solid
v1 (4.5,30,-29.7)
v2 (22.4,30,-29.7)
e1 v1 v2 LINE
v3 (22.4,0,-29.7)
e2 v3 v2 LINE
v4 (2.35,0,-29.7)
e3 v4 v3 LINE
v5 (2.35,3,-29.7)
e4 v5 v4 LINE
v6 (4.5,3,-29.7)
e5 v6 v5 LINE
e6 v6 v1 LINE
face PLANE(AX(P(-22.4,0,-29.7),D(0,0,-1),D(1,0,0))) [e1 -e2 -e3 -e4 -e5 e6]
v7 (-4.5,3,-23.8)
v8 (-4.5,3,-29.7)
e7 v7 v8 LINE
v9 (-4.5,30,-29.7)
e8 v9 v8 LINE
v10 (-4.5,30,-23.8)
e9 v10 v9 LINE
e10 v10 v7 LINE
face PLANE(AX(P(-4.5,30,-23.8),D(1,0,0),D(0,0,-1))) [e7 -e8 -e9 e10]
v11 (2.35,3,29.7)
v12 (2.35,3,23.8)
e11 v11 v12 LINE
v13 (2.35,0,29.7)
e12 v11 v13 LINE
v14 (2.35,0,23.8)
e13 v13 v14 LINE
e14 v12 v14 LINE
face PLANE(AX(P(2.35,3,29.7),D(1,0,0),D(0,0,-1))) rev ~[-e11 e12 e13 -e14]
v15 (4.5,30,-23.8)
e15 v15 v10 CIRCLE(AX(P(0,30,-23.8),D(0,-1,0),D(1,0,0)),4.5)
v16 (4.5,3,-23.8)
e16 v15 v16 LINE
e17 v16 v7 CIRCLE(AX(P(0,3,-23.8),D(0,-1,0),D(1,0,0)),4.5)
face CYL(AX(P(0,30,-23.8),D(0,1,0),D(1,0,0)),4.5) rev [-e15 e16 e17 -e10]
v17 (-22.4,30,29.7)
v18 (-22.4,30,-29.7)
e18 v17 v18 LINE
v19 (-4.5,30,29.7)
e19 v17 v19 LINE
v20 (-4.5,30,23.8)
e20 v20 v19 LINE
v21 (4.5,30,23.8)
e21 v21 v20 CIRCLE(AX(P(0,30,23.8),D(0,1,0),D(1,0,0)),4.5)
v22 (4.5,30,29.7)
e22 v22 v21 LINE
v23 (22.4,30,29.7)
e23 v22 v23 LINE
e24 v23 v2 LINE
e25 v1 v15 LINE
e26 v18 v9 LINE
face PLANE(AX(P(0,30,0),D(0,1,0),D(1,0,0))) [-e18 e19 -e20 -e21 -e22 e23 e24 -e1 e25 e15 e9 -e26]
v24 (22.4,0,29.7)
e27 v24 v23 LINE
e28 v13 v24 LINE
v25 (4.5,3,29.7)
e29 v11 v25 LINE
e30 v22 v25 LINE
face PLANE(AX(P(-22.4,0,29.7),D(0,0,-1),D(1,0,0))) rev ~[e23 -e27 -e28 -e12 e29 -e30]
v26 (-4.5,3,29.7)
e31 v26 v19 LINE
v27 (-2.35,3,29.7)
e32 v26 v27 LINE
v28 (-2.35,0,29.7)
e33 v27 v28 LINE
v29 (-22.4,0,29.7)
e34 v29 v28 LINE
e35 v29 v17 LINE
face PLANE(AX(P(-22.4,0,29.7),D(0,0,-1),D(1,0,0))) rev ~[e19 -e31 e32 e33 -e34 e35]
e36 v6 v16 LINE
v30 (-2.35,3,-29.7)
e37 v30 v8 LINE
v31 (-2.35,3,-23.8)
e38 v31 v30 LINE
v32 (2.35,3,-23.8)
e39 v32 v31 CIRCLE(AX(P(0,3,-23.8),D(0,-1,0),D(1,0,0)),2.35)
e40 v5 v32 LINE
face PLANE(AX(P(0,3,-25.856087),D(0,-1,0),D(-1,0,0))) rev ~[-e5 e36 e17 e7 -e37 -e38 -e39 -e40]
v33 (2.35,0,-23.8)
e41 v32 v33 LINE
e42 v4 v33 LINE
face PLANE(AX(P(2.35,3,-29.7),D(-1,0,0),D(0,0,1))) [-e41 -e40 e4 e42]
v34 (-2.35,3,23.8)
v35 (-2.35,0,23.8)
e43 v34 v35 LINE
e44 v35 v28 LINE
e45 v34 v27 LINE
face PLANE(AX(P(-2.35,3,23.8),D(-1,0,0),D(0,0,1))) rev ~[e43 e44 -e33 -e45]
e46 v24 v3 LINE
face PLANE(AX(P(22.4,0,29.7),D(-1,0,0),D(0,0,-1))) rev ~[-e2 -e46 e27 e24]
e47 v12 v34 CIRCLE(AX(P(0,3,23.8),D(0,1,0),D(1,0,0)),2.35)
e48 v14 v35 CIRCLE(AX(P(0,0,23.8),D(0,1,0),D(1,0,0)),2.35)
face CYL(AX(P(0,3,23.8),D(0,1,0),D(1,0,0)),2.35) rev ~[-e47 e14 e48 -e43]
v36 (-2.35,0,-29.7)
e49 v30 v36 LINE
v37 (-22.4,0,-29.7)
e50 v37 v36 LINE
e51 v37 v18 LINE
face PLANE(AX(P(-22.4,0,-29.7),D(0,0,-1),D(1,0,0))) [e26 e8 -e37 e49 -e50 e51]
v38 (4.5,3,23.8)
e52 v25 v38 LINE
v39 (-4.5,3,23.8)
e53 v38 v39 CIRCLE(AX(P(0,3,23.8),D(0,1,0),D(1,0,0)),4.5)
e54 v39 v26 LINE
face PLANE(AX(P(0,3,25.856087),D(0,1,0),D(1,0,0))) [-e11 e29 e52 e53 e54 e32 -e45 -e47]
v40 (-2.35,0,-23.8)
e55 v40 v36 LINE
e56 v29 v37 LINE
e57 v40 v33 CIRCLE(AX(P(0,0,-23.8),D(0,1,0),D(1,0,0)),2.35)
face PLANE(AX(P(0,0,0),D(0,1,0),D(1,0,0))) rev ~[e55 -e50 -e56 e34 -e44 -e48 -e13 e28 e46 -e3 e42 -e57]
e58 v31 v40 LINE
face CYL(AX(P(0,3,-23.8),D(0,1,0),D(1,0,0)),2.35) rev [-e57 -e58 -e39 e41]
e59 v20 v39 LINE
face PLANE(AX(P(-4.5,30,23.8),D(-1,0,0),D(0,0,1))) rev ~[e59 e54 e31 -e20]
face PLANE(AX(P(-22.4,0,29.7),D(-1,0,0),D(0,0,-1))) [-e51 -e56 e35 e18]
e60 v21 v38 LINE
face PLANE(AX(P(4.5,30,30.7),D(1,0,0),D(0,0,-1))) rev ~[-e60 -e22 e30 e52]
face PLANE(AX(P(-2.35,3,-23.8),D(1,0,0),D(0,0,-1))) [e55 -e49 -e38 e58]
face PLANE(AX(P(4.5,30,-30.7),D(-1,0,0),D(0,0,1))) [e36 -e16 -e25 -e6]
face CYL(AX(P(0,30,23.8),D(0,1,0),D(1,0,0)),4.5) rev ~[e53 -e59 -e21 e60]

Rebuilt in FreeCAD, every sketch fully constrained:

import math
import FreeCAD as App
import Part
import Sketcher
Q = App.Units.Quantity


def add_polygon(sketch, points):
    """Adds a closed chain of lines whose ends are joined by coincident constraints."""
    first, n = sketch.GeometryCount, len(points)
    for a, b in zip(points, points[1:] + points[:1]):
        sketch.addGeometry(Part.LineSegment(App.Vector(*a, 0), App.Vector(*b, 0)), False)
    for i in range(n):
        sketch.addConstraint(Sketcher.Constraint("Coincident", first + i, 2, first + (i + 1) % n, 1))

doc = App.newDocument("Part")
params = doc.addObject("Spreadsheet::Sheet", "Params")
for row, (alias, value) in enumerate([
    ("sketch1_width", "44.8 mm"),
    ("sketch1_height", "59.4 mm"),
    ("pad1_length", "30 mm"),
    ("sketch2_radius", "4.5 mm"),
    ("sketch2_height", "6.9 mm"),
    ("pocket1_length", "27 mm"),
    ("sketch3_radius", "2.35 mm"),
    ("sketch3_height", "5.9 mm"),
], start=1):
    params.set(f"A{row}", alias)
    params.set(f"B{row}", "=" + value)
    params.setAlias(f"B{row}", alias)

body = doc.addObject("PartDesign::Body", "Body")

# Sketch on XZ plane
sketch1 = body.newObject("Sketcher::SketchObject", "Sketch")
sketch1.AttachmentSupport = (doc.getObject("XZ_Plane"), [""])
sketch1.MapMode = "FlatFace"
add_polygon(sketch1, [(-22.4, -29.7), (-22.4, 29.7), (22.4, 29.7), (22.4, -29.7)])  # lines 0-3
sketch1.addConstraint([
    Sketcher.Constraint("Vertical", 0),
    Sketcher.Constraint("Horizontal", 1),
    Sketcher.Constraint("Vertical", 2),
    Sketcher.Constraint("Horizontal", 3),
    Sketcher.Constraint("Symmetric", 0, 2, 2, 2, -1, 1),
    Sketcher.Constraint("DistanceX", 1, 1, 1, 2, Q("44.8 mm")),
    Sketcher.Constraint("DistanceY", 0, 1, 0, 2, Q("59.4 mm")),
])
sketch1.setExpression("Constraints[9]", "Params.sketch1_width")
sketch1.setExpression("Constraints[10]", "Params.sketch1_height")
pad1 = body.newObject("PartDesign::Pad", "Pad")
pad1.Profile = sketch1
pad1.setExpression("Length", "Params.pad1_length")
pad1.Reversed = True

# Sketch on XZ plane
sketch2 = body.newObject("Sketcher::SketchObject", "Sketch001")
sketch2.AttachmentSupport = (doc.getObject("XZ_Plane"), [""])
sketch2.MapMode = "FlatFace"
sketch2.AttachmentOffset = App.Placement(App.Vector(0, 0, -30), App.Rotation())
sketch2.addGeometry([
    Part.LineSegment(App.Vector(-4.5, -30.7, 0), App.Vector(-4.5, -23.8, 0)),  # 0
    Part.ArcOfCircle(Part.Circle(App.Vector(0, -23.8, 0), App.Vector(0, 0, 1), 4.5), math.radians(0), math.radians(180)),  # 1
    Part.LineSegment(App.Vector(4.5, -23.8, 0), App.Vector(4.5, -30.7, 0)),  # 2
    Part.LineSegment(App.Vector(4.5, -30.7, 0), App.Vector(-4.5, -30.7, 0)),  # 3
    Part.LineSegment(App.Vector(-4.5, 23.8, 0), App.Vector(-4.5, 30.7, 0)),  # 4
    Part.LineSegment(App.Vector(-4.5, 30.7, 0), App.Vector(4.5, 30.7, 0)),  # 5
    Part.LineSegment(App.Vector(4.5, 30.7, 0), App.Vector(4.5, 23.8, 0)),  # 6
    Part.ArcOfCircle(Part.Circle(App.Vector(0, 23.8, 0), App.Vector(0, 0, 1), 4.5), math.radians(180), math.radians(360)),  # 7
], False)
sketch2.addConstraint([
    Sketcher.Constraint("Tangent", 0, 2, 1, 2),
    Sketcher.Constraint("Tangent", 1, 1, 2, 1),
    Sketcher.Constraint("Coincident", 2, 2, 3, 1),
    Sketcher.Constraint("Coincident", 3, 2, 0, 1),
    Sketcher.Constraint("Coincident", 4, 2, 5, 1),
    Sketcher.Constraint("Coincident", 5, 2, 6, 1),
    Sketcher.Constraint("Tangent", 6, 2, 7, 2),
    Sketcher.Constraint("Tangent", 7, 1, 4, 1),
    Sketcher.Constraint("Vertical", 0),
    Sketcher.Constraint("Vertical", 2),
    Sketcher.Constraint("Horizontal", 3),
    Sketcher.Constraint("Vertical", 4),
    Sketcher.Constraint("Horizontal", 5),
    Sketcher.Constraint("Vertical", 6),
    Sketcher.Constraint("Equal", 1, 7),
    Sketcher.Constraint("Symmetric", 1, 3, 7, 3, -1, 1),
    Sketcher.Constraint("Symmetric", 3, 2, 4, 2, -1),
    Sketcher.Constraint("Radius", 1, Q("4.5 mm")),
    Sketcher.Constraint("DistanceY", 0, 1, 0, 2, Q("6.9 mm")),
    Sketcher.Constraint("DistanceY", 1, 3, -1, 1, Q("23.8 mm")),
])
sketch2.setExpression("Constraints[17]", "Params.sketch2_radius")
sketch2.setExpression("Constraints[18]", "Params.sketch2_height")
pocket1 = body.newObject("PartDesign::Pocket", "Pocket")
pocket1.Profile = sketch2
pocket1.setExpression("Length", "Params.pocket1_length")
pocket1.Reversed = True

# Sketch on XZ plane
sketch3 = body.newObject("Sketcher::SketchObject", "Sketch002")
sketch3.AttachmentSupport = (doc.getObject("XZ_Plane"), [""])
sketch3.MapMode = "FlatFace"
sketch3.AttachmentOffset = App.Placement(App.Vector(0, 0, -3), App.Rotation())
sketch3.addGeometry([
    Part.LineSegment(App.Vector(-2.35, -29.7, 0), App.Vector(-2.35, -23.8, 0)),  # 0
    Part.ArcOfCircle(Part.Circle(App.Vector(0, -23.8, 0), App.Vector(0, 0, 1), 2.35), math.radians(0), math.radians(180)),  # 1
    Part.LineSegment(App.Vector(2.35, -23.8, 0), App.Vector(2.35, -29.7, 0)),  # 2
    Part.LineSegment(App.Vector(2.35, -29.7, 0), App.Vector(-2.35, -29.7, 0)),  # 3
    Part.LineSegment(App.Vector(-2.35, 23.8, 0), App.Vector(-2.35, 29.7, 0)),  # 4
    Part.LineSegment(App.Vector(-2.35, 29.7, 0), App.Vector(2.35, 29.7, 0)),  # 5
    Part.LineSegment(App.Vector(2.35, 29.7, 0), App.Vector(2.35, 23.8, 0)),  # 6
    Part.ArcOfCircle(Part.Circle(App.Vector(0, 23.8, 0), App.Vector(0, 0, 1), 2.35), math.radians(180), math.radians(360)),  # 7
], False)
sketch3.addConstraint([
    Sketcher.Constraint("Tangent", 0, 2, 1, 2),
    Sketcher.Constraint("Tangent", 1, 1, 2, 1),
    Sketcher.Constraint("Coincident", 2, 2, 3, 1),
    Sketcher.Constraint("Coincident", 3, 2, 0, 1),
    Sketcher.Constraint("Coincident", 4, 2, 5, 1),
    Sketcher.Constraint("Coincident", 5, 2, 6, 1),
    Sketcher.Constraint("Tangent", 6, 2, 7, 2),
    Sketcher.Constraint("Tangent", 7, 1, 4, 1),
    Sketcher.Constraint("Vertical", 0),
    Sketcher.Constraint("Vertical", 2),
    Sketcher.Constraint("Horizontal", 3),
    Sketcher.Constraint("Vertical", 4),
    Sketcher.Constraint("Horizontal", 5),
    Sketcher.Constraint("Vertical", 6),
    Sketcher.Constraint("Equal", 1, 7),
    Sketcher.Constraint("Symmetric", 1, 3, 7, 3, -1, 1),
    Sketcher.Constraint("Symmetric", 3, 2, 4, 2, -1),
    Sketcher.Constraint("Radius", 1, Q("2.35 mm")),
    Sketcher.Constraint("DistanceY", 0, 1, 0, 2, Q("5.9 mm")),
    Sketcher.Constraint("DistanceY", 1, 3, -1, 1, Q("23.8 mm")),
])
sketch3.setExpression("Constraints[17]", "Params.sketch3_radius")
sketch3.setExpression("Constraints[18]", "Params.sketch3_height")
pocket2 = body.newObject("PartDesign::Pocket", "Pocket001")
pocket2.Profile = sketch3
pocket2.Type = "ThroughAll"
pocket2.Reversed = True

doc.recompute()
